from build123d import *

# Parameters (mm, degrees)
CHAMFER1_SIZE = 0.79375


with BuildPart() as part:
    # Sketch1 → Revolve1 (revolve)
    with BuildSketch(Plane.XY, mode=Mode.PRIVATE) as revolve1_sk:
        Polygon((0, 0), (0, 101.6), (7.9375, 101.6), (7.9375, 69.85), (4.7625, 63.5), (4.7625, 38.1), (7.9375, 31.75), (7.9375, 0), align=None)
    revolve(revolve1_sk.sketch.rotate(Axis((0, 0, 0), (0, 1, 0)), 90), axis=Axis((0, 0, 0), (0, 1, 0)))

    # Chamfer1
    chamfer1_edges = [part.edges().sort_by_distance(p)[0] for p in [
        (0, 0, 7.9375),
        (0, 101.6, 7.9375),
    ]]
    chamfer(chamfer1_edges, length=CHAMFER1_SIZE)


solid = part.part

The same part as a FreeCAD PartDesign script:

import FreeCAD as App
import Part
import Sketcher
from FreeCAD import Vector
Q = App.Units.Quantity


def edges_at(feature, points):
    """Names of the edges that pass closest to the given points."""
    edges = feature.Shape.Edges
    near = lambda p: min(range(len(edges)), key=lambda i: edges[i].distToShape(Part.Vertex(*p))[0])
    return sorted({f"Edge{near(p) + 1}" for p in points})


def add_polygon(sketch, points):
    """Adds a closed chain of lines whose ends are joined by coincident constraints."""
    first, n = sketch.GeometryCount, len(points)
    for a, b in zip(points, points[1:] + points[:1]):
        sketch.addGeometry(Part.LineSegment(App.Vector(*a, 0), App.Vector(*b, 0)), False)
    for i in range(n):
        sketch.addConstraint(Sketcher.Constraint("Coincident", first + i, 2, first + (i + 1) % n, 1))

doc = App.newDocument("Part")
body = doc.addObject("PartDesign::Body", "Body")

sketch1 = body.newObject("Sketcher::SketchObject", "Sketch")
sketch1.AttachmentSupport = (doc.getObject("XY_Plane"), [""])
sketch1.MapMode = "FlatFace"
add_polygon(sketch1, [(0, 102), (0, 0), (8, 0), (8, 32), (5, 38), (5, 64), (8, 70), (8, 102)])
sketch1.addConstraint(Sketcher.Constraint("Vertical", 0))
sketch1.addConstraint(Sketcher.Constraint("Horizontal", 1))
sketch1.addConstraint(Sketcher.Constraint("Vertical", 2))
sketch1.addConstraint(Sketcher.Constraint("Vertical", 4))
sketch1.addConstraint(Sketcher.Constraint("Vertical", 6))
sketch1.addConstraint(Sketcher.Constraint("Horizontal", 7))
sketch1.addConstraint(Sketcher.Constraint("Coincident", 0, 2, -1, 1))
sketch1.addConstraint(Sketcher.Constraint("Vertical", 2, 2, 5, 2))
sketch1.addConstraint(Sketcher.Constraint("Equal", 2, 6))
sketch1.addConstraint(Sketcher.Constraint("Equal", 3, 5))
sketch1.addConstraint(Sketcher.Constraint("DistanceY", 0, 2, 0, 1, Q("4 in")))
sketch1.addConstraint(Sketcher.Constraint("DistanceY", 4, 1, 4, 2, Q("1 in")))
sketch1.addConstraint(Sketcher.Constraint("DistanceY", 2, 1, 2, 2, Q("1.25 in")))
sketch1.addConstraint(Sketcher.Constraint("DistanceX", 1, 1, 1, 2, Q("0.3125 in")))
sketch1.addConstraint(Sketcher.Constraint("DistanceX", -1, 1, 3, 2, Q("0.1875 in")))
revolution = body.newObject("PartDesign::Revolution", "Revolution")
revolution.Profile = sketch1
revolution.ReferenceAxis = (sketch1, ["V_Axis"])
revolution.Angle = 360
doc.recompute()

chamfer = body.newObject("PartDesign::Chamfer", "Chamfer")
chamfer.Base = (revolution, edges_at(revolution, [(0, 0, 7.938), (0, 101.6, 7.938)]))
chamfer.Size = Q("0.03125 in")

doc.recompute()
